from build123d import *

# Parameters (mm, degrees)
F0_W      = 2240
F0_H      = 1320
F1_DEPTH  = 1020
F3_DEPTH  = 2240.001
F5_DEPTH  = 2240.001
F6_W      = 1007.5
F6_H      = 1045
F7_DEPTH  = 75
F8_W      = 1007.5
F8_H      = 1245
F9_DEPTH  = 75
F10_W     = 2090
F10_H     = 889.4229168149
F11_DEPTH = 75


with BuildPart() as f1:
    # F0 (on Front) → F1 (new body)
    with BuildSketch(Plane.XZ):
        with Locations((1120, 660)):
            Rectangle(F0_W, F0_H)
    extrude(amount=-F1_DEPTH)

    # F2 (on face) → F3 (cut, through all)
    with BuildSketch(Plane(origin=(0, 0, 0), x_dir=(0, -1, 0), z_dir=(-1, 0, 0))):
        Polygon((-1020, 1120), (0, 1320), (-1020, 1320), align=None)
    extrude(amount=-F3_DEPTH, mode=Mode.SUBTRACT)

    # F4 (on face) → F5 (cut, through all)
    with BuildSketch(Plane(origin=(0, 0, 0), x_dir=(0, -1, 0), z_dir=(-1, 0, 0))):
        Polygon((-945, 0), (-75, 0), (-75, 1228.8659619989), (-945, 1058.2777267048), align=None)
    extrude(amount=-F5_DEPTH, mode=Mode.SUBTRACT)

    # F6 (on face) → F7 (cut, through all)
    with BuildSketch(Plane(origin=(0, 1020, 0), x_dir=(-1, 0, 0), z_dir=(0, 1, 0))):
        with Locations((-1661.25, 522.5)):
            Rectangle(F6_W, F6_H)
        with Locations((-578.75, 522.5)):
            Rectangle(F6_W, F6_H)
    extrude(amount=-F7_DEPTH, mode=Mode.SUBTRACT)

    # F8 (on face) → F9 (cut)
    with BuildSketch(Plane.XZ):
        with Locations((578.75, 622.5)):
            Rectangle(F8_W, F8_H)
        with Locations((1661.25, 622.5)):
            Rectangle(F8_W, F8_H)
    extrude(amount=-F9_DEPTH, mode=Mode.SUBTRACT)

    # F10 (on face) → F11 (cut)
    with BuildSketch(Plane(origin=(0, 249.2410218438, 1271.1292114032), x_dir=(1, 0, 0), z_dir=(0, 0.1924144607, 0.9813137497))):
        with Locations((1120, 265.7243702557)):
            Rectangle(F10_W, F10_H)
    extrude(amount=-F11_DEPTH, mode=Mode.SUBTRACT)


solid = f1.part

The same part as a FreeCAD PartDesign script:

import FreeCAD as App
import Part
import Sketcher
Q = App.Units.Quantity

doc = App.newDocument("Part")
body = doc.addObject("PartDesign::Body", "Body")

# Sketch on XZ plane
sketch1 = body.newObject("Sketcher::SketchObject", "Sketch")
sketch1.AttachmentSupport = (doc.getObject("XZ_Plane"), [""])
sketch1.MapMode = "FlatFace"
sketch1.addGeometry(Part.LineSegment(App.Vector(0, 1320, 0), App.Vector(0, 0, 0)), False)
sketch1.addGeometry(Part.LineSegment(App.Vector(0, 0, 0), App.Vector(2240, 0, 0)), False)
sketch1.addGeometry(Part.LineSegment(App.Vector(2240, 0, 0), App.Vector(2240, 1320, 0)), False)
sketch1.addGeometry(Part.LineSegment(App.Vector(2240, 1320, 0), App.Vector(0, 1320, 0)), False)
sketch1.addConstraint(Sketcher.Constraint("Coincident", 0, 2, 1, 1))
sketch1.addConstraint(Sketcher.Constraint("Coincident", 1, 2, 2, 1))
sketch1.addConstraint(Sketcher.Constraint("Coincident", 2, 2, 3, 1))
sketch1.addConstraint(Sketcher.Constraint("Coincident", 3, 2, 0, 1))
sketch1.addConstraint(Sketcher.Constraint("Vertical", 0))
sketch1.addConstraint(Sketcher.Constraint("Horizontal", 1))
sketch1.addConstraint(Sketcher.Constraint("Vertical", 2))
sketch1.addConstraint(Sketcher.Constraint("Horizontal", 3))
sketch1.addConstraint(Sketcher.Constraint("Coincident", 0, 2, -1, 1))
sketch1.addConstraint(Sketcher.Constraint("DistanceX", 1, 1, 1, 2, Q("2240 mm")))
sketch1.addConstraint(Sketcher.Constraint("DistanceY", 0, 2, 0, 1, Q("1320 mm")))
pad1 = body.newObject("PartDesign::Pad", "Pad")
pad1.Profile = sketch1
pad1.Length = 1020
pad1.Reversed = True

# Sketch on YZ plane
sketch2 = body.newObject("Sketcher::SketchObject", "Sketch001")
sketch2.AttachmentSupport = (doc.getObject("YZ_Plane"), [""])
sketch2.MapMode = "FlatFace"
sketch2.addGeometry(Part.LineSegment(App.Vector(1020, 1120, 0), App.Vector(0, 1320, 0)), False)
sketch2.addGeometry(Part.LineSegment(App.Vector(0, 1320, 0), App.Vector(1020, 1320, 0)), False)
sketch2.addGeometry(Part.LineSegment(App.Vector(1020, 1320, 0), App.Vector(1020, 1120, 0)), False)
sketch2.addConstraint(Sketcher.Constraint("Coincident", 0, 2, 1, 1))
sketch2.addConstraint(Sketcher.Constraint("Coincident", 1, 2, 2, 1))
sketch2.addConstraint(Sketcher.Constraint("Coincident", 2, 2, 0, 1))
sketch2.addConstraint(Sketcher.Constraint("Horizontal", 1))
sketch2.addConstraint(Sketcher.Constraint("Vertical", 2))
sketch2.addConstraint(Sketcher.Constraint("PointOnObject", 0, 2, -2))
sketch2.addConstraint(Sketcher.Constraint("DistanceX", 1, 1, 1, 2, Q("1020 mm")))
sketch2.addConstraint(Sketcher.Constraint("DistanceY", 2, 2, 2, 1, Q("200 mm")))
sketch2.addConstraint(Sketcher.Constraint("DistanceY", -1, 1, 0, 2, Q("1320 mm")))
pocket1 = body.newObject("PartDesign::Pocket", "Pocket")
pocket1.Profile = sketch2
pocket1.Type = "ThroughAll"
pocket1.Reversed = True

# Sketch on YZ plane
sketch3 = body.newObject("Sketcher::SketchObject", "Sketch002")
sketch3.AttachmentSupport = (doc.getObject("YZ_Plane"), [""])
sketch3.MapMode = "FlatFace"
sketch3.addGeometry(Part.LineSegment(App.Vector(945, 0, 0), App.Vector(75, 0, 0)), False)
sketch3.addGeometry(Part.LineSegment(App.Vector(75, 0, 0), App.Vector(75, 1228.865962, 0)), False)
sketch3.addGeometry(Part.LineSegment(App.Vector(75, 1228.865962, 0), App.Vector(945, 1058.277727, 0)), False)
sketch3.addGeometry(Part.LineSegment(App.Vector(945, 1058.277727, 0), App.Vector(945, 0, 0)), False)
sketch3.addConstraint(Sketcher.Constraint("Coincident", 0, 2, 1, 1))
sketch3.addConstraint(Sketcher.Constraint("Coincident", 1, 2, 2, 1))
sketch3.addConstraint(Sketcher.Constraint("Coincident", 2, 2, 3, 1))
sketch3.addConstraint(Sketcher.Constraint("Coincident", 3, 2, 0, 1))
sketch3.addConstraint(Sketcher.Constraint("Horizontal", 0))
sketch3.addConstraint(Sketcher.Constraint("Vertical", 1))
sketch3.addConstraint(Sketcher.Constraint("Vertical", 3))
sketch3.addConstraint(Sketcher.Constraint("PointOnObject", 0, 2, -1))
sketch3.addConstraint(Sketcher.Constraint("DistanceX", 0, 2, 0, 1, Q("870 mm")))
sketch3.addConstraint(Sketcher.Constraint("DistanceX", -1, 1, 0, 2, Q("75 mm")))
sketch3.addConstraint(Sketcher.Constraint("DistanceY", 1, 1, 1, 2, Q("1228.865962 mm")))
sketch3.addConstraint(Sketcher.Constraint("DistanceY", 3, 2, 3, 1, Q("1058.277727 mm")))
pocket2 = body.newObject("PartDesign::Pocket", "Pocket001")
pocket2.Profile = sketch3
pocket2.Type = "ThroughAll"
pocket2.Reversed = True

# Sketch on XZ plane
sketch4 = body.newObject("Sketcher::SketchObject", "Sketch003")
sketch4.AttachmentSupport = (doc.getObject("XZ_Plane"), [""])
sketch4.MapMode = "FlatFace"
sketch4.AttachmentOffset = App.Placement(App.Vector(0, 0, -1020), App.Rotation())
sketch4.addGeometry(Part.LineSegment(App.Vector(2165, 1045, 0), App.Vector(2165, 0, 0)), False)
sketch4.addGeometry(Part.LineSegment(App.Vector(2165, 0, 0), App.Vector(1157.5, 0, 0)), False)
sketch4.addGeometry(Part.LineSegment(App.Vector(1157.5, 0, 0), App.Vector(1157.5, 1045, 0)), False)
sketch4.addGeometry(Part.LineSegment(App.Vector(1157.5, 1045, 0), App.Vector(2165, 1045, 0)), False)
sketch4.addGeometry(Part.LineSegment(App.Vector(1082.5, 1045, 0), App.Vector(1082.5, 0, 0)), False)
sketch4.addGeometry(Part.LineSegment(App.Vector(1082.5, 0, 0), App.Vector(75, 0, 0)), False)
sketch4.addGeometry(Part.LineSegment(App.Vector(75, 0, 0), App.Vector(75, 1045, 0)), False)
sketch4.addGeometry(Part.LineSegment(App.Vector(75, 1045, 0), App.Vector(1082.5, 1045, 0)), False)
sketch4.addConstraint(Sketcher.Constraint("Coincident", 0, 2, 1, 1))
sketch4.addConstraint(Sketcher.Constraint("Coincident", 1, 2, 2, 1))
sketch4.addConstraint(Sketcher.Constraint("Coincident", 2, 2, 3, 1))
sketch4.addConstraint(Sketcher.Constraint("Coincident", 3, 2, 0, 1))
sketch4.addConstraint(Sketcher.Constraint("Coincident", 4, 2, 5, 1))
sketch4.addConstraint(Sketcher.Constraint("Coincident", 5, 2, 6, 1))
sketch4.addConstraint(Sketcher.Constraint("Coincident", 6, 2, 7, 1))
sketch4.addConstraint(Sketcher.Constraint("Coincident", 7, 2, 4, 1))
sketch4.addConstraint(Sketcher.Constraint("Vertical", 0))
sketch4.addConstraint(Sketcher.Constraint("Horizontal", 1))
sketch4.addConstraint(Sketcher.Constraint("Vertical", 2))
sketch4.addConstraint(Sketcher.Constraint("Horizontal", 3))
sketch4.addConstraint(Sketcher.Constraint("Vertical", 4))
sketch4.addConstraint(Sketcher.Constraint("Horizontal", 5))
sketch4.addConstraint(Sketcher.Constraint("Vertical", 6))
sketch4.addConstraint(Sketcher.Constraint("Horizontal", 7))
sketch4.addConstraint(Sketcher.Constraint("PointOnObject", 0, 2, -1))
sketch4.addConstraint(Sketcher.Constraint("PointOnObject", 4, 2, -1))
sketch4.addConstraint(Sketcher.Constraint("Horizontal", 3, 2, 6, 2))
sketch4.addConstraint(Sketcher.Constraint("Equal", 3, 5))
sketch4.addConstraint(Sketcher.Constraint("DistanceY", 0, 2, 0, 1, Q("1045 mm")))
sketch4.addConstraint(Sketcher.Constraint("DistanceX", 1, 2, 1, 1, Q("1007.5 mm")))
sketch4.addConstraint(Sketcher.Constraint("DistanceX", -1, 1, 0, 2, Q("2165 mm")))
sketch4.addConstraint(Sketcher.Constraint("DistanceX", -1, 1, 5, 2, Q("75 mm")))
pocket3 = body.newObject("PartDesign::Pocket", "Pocket002")
pocket3.Profile = sketch4
pocket3.Length = 75
pocket3.Reversed = True

# Sketch on XZ plane
sketch5 = body.newObject("Sketcher::SketchObject", "Sketch004")
sketch5.AttachmentSupport = (doc.getObject("XZ_Plane"), [""])
sketch5.MapMode = "FlatFace"
sketch5.addGeometry(Part.LineSegment(App.Vector(75, 1245, 0), App.Vector(75, 0, 0)), False)
sketch5.addGeometry(Part.LineSegment(App.Vector(75, 0, 0), App.Vector(1082.5, 0, 0)), False)
sketch5.addGeometry(Part.LineSegment(App.Vector(1082.5, 0, 0), App.Vector(1082.5, 1245, 0)), False)
sketch5.addGeometry(Part.LineSegment(App.Vector(1082.5, 1245, 0), App.Vector(75, 1245, 0)), False)
sketch5.addGeometry(Part.LineSegment(App.Vector(1157.5, 1245, 0), App.Vector(1157.5, 0, 0)), False)
sketch5.addGeometry(Part.LineSegment(App.Vector(1157.5, 0, 0), App.Vector(2165, 0, 0)), False)
sketch5.addGeometry(Part.LineSegment(App.Vector(2165, 0, 0), App.Vector(2165, 1245, 0)), False)
sketch5.addGeometry(Part.LineSegment(App.Vector(2165, 1245, 0), App.Vector(1157.5, 1245, 0)), False)
sketch5.addConstraint(Sketcher.Constraint("Coincident", 0, 2, 1, 1))
sketch5.addConstraint(Sketcher.Constraint("Coincident", 1, 2, 2, 1))
sketch5.addConstraint(Sketcher.Constraint("Coincident", 2, 2, 3, 1))
sketch5.addConstraint(Sketcher.Constraint("Coincident", 3, 2, 0, 1))
sketch5.addConstraint(Sketcher.Constraint("Coincident", 4, 2, 5, 1))
sketch5.addConstraint(Sketcher.Constraint("Coincident", 5, 2, 6, 1))
sketch5.addConstraint(Sketcher.Constraint("Coincident", 6, 2, 7, 1))
sketch5.addConstraint(Sketcher.Constraint("Coincident", 7, 2, 4, 1))
sketch5.addConstraint(Sketcher.Constraint("Vertical", 0))
sketch5.addConstraint(Sketcher.Constraint("Horizontal", 1))
sketch5.addConstraint(Sketcher.Constraint("Vertical", 2))
sketch5.addConstraint(Sketcher.Constraint("Horizontal", 3))
sketch5.addConstraint(Sketcher.Constraint("Vertical", 4))
sketch5.addConstraint(Sketcher.Constraint("Horizontal", 5))
sketch5.addConstraint(Sketcher.Constraint("Vertical", 6))
sketch5.addConstraint(Sketcher.Constraint("Horizontal", 7))
sketch5.addConstraint(Sketcher.Constraint("PointOnObject", 0, 2, -1))
sketch5.addConstraint(Sketcher.Constraint("PointOnObject", 4, 2, -1))
sketch5.addConstraint(Sketcher.Constraint("Horizontal", 3, 2, 6, 2))
sketch5.addConstraint(Sketcher.Constraint("Equal", 3, 5))
sketch5.addConstraint(Sketcher.Constraint("DistanceY", 0, 2, 0, 1, Q("1245 mm")))
sketch5.addConstraint(Sketcher.Constraint("DistanceX", 1, 1, 1, 2, Q("1007.5 mm")))
sketch5.addConstraint(Sketcher.Constraint("DistanceX", -1, 1, 0, 2, Q("75 mm")))
sketch5.addConstraint(Sketcher.Constraint("DistanceX", -1, 1, 5, 2, Q("2165 mm")))
pocket4 = body.newObject("PartDesign::Pocket", "Pocket003")
pocket4.Profile = sketch5
pocket4.Length = 75

# Sketch on an angled plane
sketch6 = body.newObject("Sketcher::SketchObject", "Sketch005")
sketch6.Placement = App.Placement(App.Vector(0, 249.241022, 1271.129211), App.Rotation(App.Vector(1, 0, 0), App.Vector(0, 0.98131375, -0.192414461), App.Vector(0, 0.192414461, 0.98131375), "ZXY"))
sketch6.addGeometry(Part.LineSegment(App.Vector(75, 710.435829, 0), App.Vector(75, -178.987088, 0)), False)
sketch6.addGeometry(Part.LineSegment(App.Vector(75, -178.987088, 0), App.Vector(2165, -178.987088, 0)), False)
sketch6.addGeometry(Part.LineSegment(App.Vector(2165, -178.987088, 0), App.Vector(2165, 710.435829, 0)), False)
sketch6.addGeometry(Part.LineSegment(App.Vector(2165, 710.435829, 0), App.Vector(75, 710.435829, 0)), False)
sketch6.addConstraint(Sketcher.Constraint("Coincident", 0, 2, 1, 1))
sketch6.addConstraint(Sketcher.Constraint("Coincident", 1, 2, 2, 1))
sketch6.addConstraint(Sketcher.Constraint("Coincident", 2, 2, 3, 1))
sketch6.addConstraint(Sketcher.Constraint("Coincident", 3, 2, 0, 1))
sketch6.addConstraint(Sketcher.Constraint("Vertical", 0))
sketch6.addConstraint(Sketcher.Constraint("Horizontal", 1))
sketch6.addConstraint(Sketcher.Constraint("Vertical", 2))
sketch6.addConstraint(Sketcher.Constraint("Horizontal", 3))
sketch6.addConstraint(Sketcher.Constraint("DistanceX", 1, 1, 1, 2, Q("2090 mm")))
sketch6.addConstraint(Sketcher.Constraint("DistanceX", -1, 1, 0, 2, Q("75 mm")))
sketch6.addConstraint(Sketcher.Constraint("DistanceY", 0, 2, 0, 1, Q("889.422917 mm")))
sketch6.addConstraint(Sketcher.Constraint("DistanceY", 0, 2, -1, 1, Q("178.987088 mm")))
pocket5 = body.newObject("PartDesign::Pocket", "Pocket004")
pocket5.Profile = sketch6
pocket5.Length = 75

doc.recompute()
